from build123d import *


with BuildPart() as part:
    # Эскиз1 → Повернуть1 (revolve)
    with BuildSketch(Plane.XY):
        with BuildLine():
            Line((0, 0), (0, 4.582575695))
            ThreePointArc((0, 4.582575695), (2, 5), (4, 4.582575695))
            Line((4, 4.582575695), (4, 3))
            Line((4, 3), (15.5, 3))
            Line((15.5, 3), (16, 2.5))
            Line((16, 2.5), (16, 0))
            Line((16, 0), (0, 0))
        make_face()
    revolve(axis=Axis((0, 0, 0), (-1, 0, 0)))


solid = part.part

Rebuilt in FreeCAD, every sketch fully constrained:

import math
import FreeCAD as App
import Part
import Sketcher
from FreeCAD import Vector
Q = App.Units.Quantity

doc = App.newDocument("Part")
body = doc.addObject("PartDesign::Body", "Body")

sketch1 = doc.addObject("Sketcher::SketchObject", "Sketch")
body.addObject(sketch1)
sketch1.AttachmentSupport = (doc.XY_Plane, [""])
sketch1.MapMode = "FlatFace"
sketch1.addGeometry(Part.LineSegment(Vector(0, 4.6, 0), Vector(0, 0, 0)), False)
sketch1.addGeometry(Part.LineSegment(Vector(0, 0, 0), Vector(16, 0, 0)), False)
sketch1.addGeometry(Part.LineSegment(Vector(16, 0, 0), Vector(16, 2.5, 0)), False)
sketch1.addGeometry(Part.LineSegment(Vector(16, 2.5, 0), Vector(15.5, 3, 0)), False)
sketch1.addGeometry(Part.LineSegment(Vector(15.5, 3, 0), Vector(4, 3, 0)), False)
sketch1.addGeometry(Part.LineSegment(Vector(4, 3, 0), Vector(4, 4.6, 0)), False)
sketch1.addGeometry(Part.ArcOfCircle(Part.Circle(Vector(2, 0, 0), Vector(0, 0, 1), 5), math.radians(66), math.radians(114)), False)
sketch1.addConstraint(Sketcher.Constraint("Coincident", 0, 2, 1, 1))
sketch1.addConstraint(Sketcher.Constraint("Coincident", 1, 2, 2, 1))
sketch1.addConstraint(Sketcher.Constraint("Coincident", 2, 2, 3, 1))
sketch1.addConstraint(Sketcher.Constraint("Coincident", 3, 2, 4, 1))
sketch1.addConstraint(Sketcher.Constraint("Coincident", 4, 2, 5, 1))
sketch1.addConstraint(Sketcher.Constraint("Coincident", 5, 2, 6, 1))
sketch1.addConstraint(Sketcher.Constraint("Coincident", 6, 2, 0, 1))
sketch1.addConstraint(Sketcher.Constraint("Vertical", 0))
sketch1.addConstraint(Sketcher.Constraint("Horizontal", 1))
sketch1.addConstraint(Sketcher.Constraint("Vertical", 2))
sketch1.addConstraint(Sketcher.Constraint("Horizontal", 4))
sketch1.addConstraint(Sketcher.Constraint("Vertical", 5))
sketch1.addConstraint(Sketcher.Constraint("Coincident", 0, 2, -1, 1))
sketch1.addConstraint(Sketcher.Constraint("PointOnObject", 6, 3, -1))
sketch1.addConstraint(Sketcher.Constraint("Horizontal", 5, 2, 6, 2))
sketch1.addConstraint(Sketcher.Constraint("Radius", 6, 5.0))
sketch1.addConstraint(Sketcher.Constraint("DistanceX", 1, 1, 1, 2, 16.0))
sketch1.addConstraint(Sketcher.Constraint("Angle", 3, Q("135 deg")))
sketch1.addConstraint(Sketcher.Constraint("DistanceX", 4, 2, 4, 1, 11.5))
sketch1.addConstraint(Sketcher.Constraint("DistanceY", 2, 1, 2, 2, 2.5))
sketch1.addConstraint(Sketcher.Constraint("DistanceX", -1, 1, 6, 3, 2.0))
revolution = doc.addObject("PartDesign::Revolution", "Revolution")
body.addObject(revolution)
revolution.Profile = sketch1
revolution.ReferenceAxis = (sketch1, ["H_Axis"])
revolution.Angle = 360

doc.recompute()
